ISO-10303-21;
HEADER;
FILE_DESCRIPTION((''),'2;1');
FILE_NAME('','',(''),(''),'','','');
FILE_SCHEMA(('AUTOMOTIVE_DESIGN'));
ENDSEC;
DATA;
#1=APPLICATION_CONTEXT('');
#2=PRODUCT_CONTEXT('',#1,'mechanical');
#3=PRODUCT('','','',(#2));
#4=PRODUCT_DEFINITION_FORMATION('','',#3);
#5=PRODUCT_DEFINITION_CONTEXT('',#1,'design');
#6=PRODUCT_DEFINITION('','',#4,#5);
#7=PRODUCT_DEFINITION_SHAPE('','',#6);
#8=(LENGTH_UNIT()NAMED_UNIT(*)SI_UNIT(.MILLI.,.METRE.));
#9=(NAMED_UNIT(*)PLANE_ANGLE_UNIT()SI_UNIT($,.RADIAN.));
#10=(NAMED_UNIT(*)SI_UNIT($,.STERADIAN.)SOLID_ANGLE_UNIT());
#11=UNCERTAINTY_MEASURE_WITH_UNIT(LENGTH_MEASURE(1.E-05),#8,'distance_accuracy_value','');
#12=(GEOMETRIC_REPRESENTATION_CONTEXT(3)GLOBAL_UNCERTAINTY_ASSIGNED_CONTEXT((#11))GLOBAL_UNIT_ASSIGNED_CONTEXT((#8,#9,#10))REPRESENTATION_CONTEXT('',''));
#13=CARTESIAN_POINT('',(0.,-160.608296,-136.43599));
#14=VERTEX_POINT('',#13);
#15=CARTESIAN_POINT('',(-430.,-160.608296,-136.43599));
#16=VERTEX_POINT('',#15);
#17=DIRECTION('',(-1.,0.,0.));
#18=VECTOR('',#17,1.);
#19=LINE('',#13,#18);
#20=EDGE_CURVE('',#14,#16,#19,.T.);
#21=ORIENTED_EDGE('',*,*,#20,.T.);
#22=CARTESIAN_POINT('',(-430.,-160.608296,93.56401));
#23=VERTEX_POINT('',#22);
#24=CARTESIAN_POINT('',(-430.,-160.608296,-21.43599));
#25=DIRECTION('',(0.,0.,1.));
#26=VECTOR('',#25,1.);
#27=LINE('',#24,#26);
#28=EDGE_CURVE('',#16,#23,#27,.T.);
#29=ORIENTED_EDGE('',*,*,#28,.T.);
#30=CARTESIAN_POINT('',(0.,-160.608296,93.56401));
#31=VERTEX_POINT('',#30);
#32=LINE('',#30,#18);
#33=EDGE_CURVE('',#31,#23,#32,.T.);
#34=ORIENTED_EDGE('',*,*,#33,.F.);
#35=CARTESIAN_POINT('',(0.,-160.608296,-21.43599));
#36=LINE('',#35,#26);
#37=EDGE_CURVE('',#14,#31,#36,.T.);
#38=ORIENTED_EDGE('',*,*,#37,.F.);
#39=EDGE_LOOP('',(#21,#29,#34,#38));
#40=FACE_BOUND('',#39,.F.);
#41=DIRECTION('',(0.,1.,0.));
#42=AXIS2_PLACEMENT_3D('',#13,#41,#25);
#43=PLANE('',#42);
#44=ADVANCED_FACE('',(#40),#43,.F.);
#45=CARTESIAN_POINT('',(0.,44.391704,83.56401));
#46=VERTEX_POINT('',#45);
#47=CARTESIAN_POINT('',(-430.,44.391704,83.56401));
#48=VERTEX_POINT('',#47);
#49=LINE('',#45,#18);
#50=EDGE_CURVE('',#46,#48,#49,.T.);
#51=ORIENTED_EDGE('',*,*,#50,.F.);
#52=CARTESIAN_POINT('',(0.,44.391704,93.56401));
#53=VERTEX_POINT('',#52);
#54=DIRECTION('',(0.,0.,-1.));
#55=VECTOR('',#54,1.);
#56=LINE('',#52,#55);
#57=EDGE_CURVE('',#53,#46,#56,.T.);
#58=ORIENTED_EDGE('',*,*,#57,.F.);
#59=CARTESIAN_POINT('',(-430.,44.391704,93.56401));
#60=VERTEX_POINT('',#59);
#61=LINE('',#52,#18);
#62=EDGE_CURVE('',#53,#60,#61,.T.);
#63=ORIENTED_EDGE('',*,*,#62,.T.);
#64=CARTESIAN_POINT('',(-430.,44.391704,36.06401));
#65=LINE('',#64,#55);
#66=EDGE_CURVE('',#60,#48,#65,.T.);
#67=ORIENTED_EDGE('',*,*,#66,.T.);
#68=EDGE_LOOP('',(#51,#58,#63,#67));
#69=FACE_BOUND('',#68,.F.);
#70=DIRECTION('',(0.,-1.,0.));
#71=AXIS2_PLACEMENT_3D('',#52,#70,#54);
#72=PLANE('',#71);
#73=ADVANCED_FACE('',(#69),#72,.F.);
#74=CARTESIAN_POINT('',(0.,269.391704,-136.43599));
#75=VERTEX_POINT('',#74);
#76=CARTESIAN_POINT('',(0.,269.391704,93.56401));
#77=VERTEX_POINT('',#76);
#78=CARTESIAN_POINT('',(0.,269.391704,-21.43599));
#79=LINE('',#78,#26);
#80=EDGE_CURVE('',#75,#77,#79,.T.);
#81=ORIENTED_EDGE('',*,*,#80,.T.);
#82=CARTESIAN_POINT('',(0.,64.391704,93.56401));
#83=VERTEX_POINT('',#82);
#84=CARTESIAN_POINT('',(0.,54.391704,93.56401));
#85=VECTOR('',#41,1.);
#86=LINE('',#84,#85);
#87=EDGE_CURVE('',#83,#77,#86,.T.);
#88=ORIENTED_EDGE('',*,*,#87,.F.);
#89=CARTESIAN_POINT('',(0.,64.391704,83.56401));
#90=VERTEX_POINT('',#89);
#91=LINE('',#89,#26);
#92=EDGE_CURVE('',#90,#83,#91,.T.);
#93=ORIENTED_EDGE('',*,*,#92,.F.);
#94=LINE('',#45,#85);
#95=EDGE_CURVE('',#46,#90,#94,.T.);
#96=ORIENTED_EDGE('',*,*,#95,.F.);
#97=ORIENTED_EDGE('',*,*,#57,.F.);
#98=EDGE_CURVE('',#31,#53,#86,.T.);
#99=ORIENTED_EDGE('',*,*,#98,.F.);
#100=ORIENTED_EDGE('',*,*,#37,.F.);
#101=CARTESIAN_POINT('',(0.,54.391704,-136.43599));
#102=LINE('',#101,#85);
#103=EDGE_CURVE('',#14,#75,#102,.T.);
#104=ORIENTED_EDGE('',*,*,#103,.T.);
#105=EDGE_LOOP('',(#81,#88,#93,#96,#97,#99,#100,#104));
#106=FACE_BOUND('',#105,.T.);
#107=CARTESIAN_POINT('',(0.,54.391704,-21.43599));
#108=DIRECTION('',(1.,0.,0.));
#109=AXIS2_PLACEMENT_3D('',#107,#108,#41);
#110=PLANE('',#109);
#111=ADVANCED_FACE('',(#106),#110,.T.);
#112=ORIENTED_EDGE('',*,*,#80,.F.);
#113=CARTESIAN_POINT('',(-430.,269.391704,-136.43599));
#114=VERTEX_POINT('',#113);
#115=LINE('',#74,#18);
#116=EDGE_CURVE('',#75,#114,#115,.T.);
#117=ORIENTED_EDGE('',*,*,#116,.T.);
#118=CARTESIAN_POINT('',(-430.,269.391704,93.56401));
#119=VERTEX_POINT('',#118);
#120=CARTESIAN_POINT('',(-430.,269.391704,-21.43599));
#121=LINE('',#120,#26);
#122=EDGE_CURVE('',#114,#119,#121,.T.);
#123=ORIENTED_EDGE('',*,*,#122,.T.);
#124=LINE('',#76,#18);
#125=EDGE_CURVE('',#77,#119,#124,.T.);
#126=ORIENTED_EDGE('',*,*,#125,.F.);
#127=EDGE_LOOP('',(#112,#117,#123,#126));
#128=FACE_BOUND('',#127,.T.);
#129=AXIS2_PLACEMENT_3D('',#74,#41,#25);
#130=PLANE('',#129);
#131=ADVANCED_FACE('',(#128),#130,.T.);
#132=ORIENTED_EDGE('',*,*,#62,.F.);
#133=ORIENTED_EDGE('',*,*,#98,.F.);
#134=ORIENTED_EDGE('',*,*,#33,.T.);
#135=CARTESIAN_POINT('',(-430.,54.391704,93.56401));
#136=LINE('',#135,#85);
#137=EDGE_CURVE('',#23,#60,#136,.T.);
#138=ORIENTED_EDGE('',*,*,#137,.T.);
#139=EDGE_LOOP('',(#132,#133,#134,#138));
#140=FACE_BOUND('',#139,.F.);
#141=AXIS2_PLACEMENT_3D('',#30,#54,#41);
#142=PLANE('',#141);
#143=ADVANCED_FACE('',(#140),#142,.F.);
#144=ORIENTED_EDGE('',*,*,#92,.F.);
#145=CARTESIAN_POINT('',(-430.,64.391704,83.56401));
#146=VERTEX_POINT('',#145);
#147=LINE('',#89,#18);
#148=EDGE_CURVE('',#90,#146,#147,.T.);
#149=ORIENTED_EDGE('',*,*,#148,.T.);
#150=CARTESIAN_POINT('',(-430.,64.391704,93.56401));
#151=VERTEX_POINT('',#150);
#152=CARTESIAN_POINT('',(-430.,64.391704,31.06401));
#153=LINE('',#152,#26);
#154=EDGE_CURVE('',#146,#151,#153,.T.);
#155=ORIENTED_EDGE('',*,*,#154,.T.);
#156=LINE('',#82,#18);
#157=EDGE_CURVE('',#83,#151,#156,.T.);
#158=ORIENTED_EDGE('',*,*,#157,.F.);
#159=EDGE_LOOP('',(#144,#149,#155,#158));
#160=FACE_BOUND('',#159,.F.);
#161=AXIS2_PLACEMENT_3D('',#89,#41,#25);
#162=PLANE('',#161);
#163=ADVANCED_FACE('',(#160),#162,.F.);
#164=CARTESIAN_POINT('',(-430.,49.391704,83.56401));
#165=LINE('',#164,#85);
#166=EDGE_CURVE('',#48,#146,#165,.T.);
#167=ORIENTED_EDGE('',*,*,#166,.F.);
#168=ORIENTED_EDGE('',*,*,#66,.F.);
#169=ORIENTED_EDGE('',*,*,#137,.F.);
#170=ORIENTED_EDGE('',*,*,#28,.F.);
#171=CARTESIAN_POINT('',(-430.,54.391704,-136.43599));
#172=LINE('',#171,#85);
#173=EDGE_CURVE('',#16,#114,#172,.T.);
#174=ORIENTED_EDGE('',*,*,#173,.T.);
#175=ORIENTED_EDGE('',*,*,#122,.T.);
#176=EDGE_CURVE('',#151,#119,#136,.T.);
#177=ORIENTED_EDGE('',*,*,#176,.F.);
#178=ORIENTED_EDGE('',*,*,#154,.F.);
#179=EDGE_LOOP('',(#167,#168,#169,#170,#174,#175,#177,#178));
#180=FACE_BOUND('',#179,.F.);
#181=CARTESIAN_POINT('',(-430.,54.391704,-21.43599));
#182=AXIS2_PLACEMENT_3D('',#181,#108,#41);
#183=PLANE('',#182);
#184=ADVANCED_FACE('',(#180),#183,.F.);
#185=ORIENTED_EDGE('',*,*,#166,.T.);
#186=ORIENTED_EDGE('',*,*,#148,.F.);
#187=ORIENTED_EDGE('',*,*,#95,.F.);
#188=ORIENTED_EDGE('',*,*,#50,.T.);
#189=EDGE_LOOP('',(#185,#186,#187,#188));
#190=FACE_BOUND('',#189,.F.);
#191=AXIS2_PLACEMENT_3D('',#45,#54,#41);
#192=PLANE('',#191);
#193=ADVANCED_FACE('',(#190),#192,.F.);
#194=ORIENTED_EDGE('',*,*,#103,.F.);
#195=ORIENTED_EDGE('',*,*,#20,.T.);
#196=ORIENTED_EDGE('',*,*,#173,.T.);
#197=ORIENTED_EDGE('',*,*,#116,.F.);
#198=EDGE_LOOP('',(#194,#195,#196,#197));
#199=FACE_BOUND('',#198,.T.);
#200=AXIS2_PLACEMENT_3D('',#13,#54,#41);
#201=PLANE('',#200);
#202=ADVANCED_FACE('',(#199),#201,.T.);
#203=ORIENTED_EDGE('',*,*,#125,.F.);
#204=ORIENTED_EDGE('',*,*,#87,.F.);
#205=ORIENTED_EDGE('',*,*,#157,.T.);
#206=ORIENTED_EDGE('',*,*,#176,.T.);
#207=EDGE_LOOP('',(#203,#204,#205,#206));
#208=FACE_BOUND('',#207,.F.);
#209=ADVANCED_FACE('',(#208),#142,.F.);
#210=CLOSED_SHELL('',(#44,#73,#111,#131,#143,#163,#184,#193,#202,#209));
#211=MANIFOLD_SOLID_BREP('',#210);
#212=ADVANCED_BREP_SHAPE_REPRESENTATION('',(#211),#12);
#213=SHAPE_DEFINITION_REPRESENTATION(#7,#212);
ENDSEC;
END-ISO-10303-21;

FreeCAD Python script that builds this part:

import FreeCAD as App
import Part
import Sketcher
Q = App.Units.Quantity


def add_polygon(sketch, points):
    """Adds a closed chain of lines whose ends are joined by coincident constraints."""
    first, n = sketch.GeometryCount, len(points)
    for a, b in zip(points, points[1:] + points[:1]):
        sketch.addGeometry(Part.LineSegment(App.Vector(*a, 0), App.Vector(*b, 0)), False)
    for i in range(n):
        sketch.addConstraint(Sketcher.Constraint("Coincident", first + i, 2, first + (i + 1) % n, 1))

doc = App.newDocument("Part")
body = doc.addObject("PartDesign::Body", "Body")

sketch1 = body.newObject("Sketcher::SketchObject", "Sketch")
sketch1.AttachmentSupport = (doc.getObject("YZ_Plane"), [""])
sketch1.MapMode = "FlatFace"
add_polygon(sketch1, [(-160.608296, 93.56401), (-160.608296, -136.43599), (269.391704, -136.43599), (269.391704, 93.56401)])
sketch1.addConstraint([
    Sketcher.Constraint("Vertical", 0),
    Sketcher.Constraint("Horizontal", 1),
    Sketcher.Constraint("Vertical", 2),
    Sketcher.Constraint("Horizontal", 3),
    Sketcher.Constraint("DistanceX", 1, 1, 1, 2, Q("430 mm")),
    Sketcher.Constraint("DistanceY", 0, 2, 0, 1, Q("230 mm")),
    Sketcher.Constraint("DistanceY", 0, 2, -1, 1, Q("136.43599 mm")),
    Sketcher.Constraint("DistanceX", 0, 2, -1, 1, Q("160.608296 mm")),
])
pad1 = body.newObject("PartDesign::Pad", "Pad")
pad1.Profile = sketch1
pad1.Length = 430
pad1.Reversed = True

sketch2 = body.newObject("Sketcher::SketchObject", "Sketch001")
sketch2.AttachmentSupport = (doc.getObject("YZ_Plane"), [""])
sketch2.MapMode = "FlatFace"
add_polygon(sketch2, [(44.391704, 93.56401), (44.391704, 83.56401), (64.391704, 83.56401), (64.391704, 93.56401)])
sketch2.addConstraint([
    Sketcher.Constraint("Vertical", 0),
    Sketcher.Constraint("Horizontal", 1),
    Sketcher.Constraint("Vertical", 2),
    Sketcher.Constraint("Horizontal", 3),
    Sketcher.Constraint("DistanceX", 1, 1, 1, 2, Q("20 mm")),
    Sketcher.Constraint("DistanceY", 0, 2, 0, 1, Q("10 mm")),
    Sketcher.Constraint("DistanceY", -1, 1, 0, 2, Q("83.56401 mm")),
    Sketcher.Constraint("DistanceX", -1, 1, 0, 2, Q("44.391704 mm")),
])
pocket1 = body.newObject("PartDesign::Pocket", "Pocket")
pocket1.Profile = sketch2
pocket1.Length = 560

doc.recompute()
